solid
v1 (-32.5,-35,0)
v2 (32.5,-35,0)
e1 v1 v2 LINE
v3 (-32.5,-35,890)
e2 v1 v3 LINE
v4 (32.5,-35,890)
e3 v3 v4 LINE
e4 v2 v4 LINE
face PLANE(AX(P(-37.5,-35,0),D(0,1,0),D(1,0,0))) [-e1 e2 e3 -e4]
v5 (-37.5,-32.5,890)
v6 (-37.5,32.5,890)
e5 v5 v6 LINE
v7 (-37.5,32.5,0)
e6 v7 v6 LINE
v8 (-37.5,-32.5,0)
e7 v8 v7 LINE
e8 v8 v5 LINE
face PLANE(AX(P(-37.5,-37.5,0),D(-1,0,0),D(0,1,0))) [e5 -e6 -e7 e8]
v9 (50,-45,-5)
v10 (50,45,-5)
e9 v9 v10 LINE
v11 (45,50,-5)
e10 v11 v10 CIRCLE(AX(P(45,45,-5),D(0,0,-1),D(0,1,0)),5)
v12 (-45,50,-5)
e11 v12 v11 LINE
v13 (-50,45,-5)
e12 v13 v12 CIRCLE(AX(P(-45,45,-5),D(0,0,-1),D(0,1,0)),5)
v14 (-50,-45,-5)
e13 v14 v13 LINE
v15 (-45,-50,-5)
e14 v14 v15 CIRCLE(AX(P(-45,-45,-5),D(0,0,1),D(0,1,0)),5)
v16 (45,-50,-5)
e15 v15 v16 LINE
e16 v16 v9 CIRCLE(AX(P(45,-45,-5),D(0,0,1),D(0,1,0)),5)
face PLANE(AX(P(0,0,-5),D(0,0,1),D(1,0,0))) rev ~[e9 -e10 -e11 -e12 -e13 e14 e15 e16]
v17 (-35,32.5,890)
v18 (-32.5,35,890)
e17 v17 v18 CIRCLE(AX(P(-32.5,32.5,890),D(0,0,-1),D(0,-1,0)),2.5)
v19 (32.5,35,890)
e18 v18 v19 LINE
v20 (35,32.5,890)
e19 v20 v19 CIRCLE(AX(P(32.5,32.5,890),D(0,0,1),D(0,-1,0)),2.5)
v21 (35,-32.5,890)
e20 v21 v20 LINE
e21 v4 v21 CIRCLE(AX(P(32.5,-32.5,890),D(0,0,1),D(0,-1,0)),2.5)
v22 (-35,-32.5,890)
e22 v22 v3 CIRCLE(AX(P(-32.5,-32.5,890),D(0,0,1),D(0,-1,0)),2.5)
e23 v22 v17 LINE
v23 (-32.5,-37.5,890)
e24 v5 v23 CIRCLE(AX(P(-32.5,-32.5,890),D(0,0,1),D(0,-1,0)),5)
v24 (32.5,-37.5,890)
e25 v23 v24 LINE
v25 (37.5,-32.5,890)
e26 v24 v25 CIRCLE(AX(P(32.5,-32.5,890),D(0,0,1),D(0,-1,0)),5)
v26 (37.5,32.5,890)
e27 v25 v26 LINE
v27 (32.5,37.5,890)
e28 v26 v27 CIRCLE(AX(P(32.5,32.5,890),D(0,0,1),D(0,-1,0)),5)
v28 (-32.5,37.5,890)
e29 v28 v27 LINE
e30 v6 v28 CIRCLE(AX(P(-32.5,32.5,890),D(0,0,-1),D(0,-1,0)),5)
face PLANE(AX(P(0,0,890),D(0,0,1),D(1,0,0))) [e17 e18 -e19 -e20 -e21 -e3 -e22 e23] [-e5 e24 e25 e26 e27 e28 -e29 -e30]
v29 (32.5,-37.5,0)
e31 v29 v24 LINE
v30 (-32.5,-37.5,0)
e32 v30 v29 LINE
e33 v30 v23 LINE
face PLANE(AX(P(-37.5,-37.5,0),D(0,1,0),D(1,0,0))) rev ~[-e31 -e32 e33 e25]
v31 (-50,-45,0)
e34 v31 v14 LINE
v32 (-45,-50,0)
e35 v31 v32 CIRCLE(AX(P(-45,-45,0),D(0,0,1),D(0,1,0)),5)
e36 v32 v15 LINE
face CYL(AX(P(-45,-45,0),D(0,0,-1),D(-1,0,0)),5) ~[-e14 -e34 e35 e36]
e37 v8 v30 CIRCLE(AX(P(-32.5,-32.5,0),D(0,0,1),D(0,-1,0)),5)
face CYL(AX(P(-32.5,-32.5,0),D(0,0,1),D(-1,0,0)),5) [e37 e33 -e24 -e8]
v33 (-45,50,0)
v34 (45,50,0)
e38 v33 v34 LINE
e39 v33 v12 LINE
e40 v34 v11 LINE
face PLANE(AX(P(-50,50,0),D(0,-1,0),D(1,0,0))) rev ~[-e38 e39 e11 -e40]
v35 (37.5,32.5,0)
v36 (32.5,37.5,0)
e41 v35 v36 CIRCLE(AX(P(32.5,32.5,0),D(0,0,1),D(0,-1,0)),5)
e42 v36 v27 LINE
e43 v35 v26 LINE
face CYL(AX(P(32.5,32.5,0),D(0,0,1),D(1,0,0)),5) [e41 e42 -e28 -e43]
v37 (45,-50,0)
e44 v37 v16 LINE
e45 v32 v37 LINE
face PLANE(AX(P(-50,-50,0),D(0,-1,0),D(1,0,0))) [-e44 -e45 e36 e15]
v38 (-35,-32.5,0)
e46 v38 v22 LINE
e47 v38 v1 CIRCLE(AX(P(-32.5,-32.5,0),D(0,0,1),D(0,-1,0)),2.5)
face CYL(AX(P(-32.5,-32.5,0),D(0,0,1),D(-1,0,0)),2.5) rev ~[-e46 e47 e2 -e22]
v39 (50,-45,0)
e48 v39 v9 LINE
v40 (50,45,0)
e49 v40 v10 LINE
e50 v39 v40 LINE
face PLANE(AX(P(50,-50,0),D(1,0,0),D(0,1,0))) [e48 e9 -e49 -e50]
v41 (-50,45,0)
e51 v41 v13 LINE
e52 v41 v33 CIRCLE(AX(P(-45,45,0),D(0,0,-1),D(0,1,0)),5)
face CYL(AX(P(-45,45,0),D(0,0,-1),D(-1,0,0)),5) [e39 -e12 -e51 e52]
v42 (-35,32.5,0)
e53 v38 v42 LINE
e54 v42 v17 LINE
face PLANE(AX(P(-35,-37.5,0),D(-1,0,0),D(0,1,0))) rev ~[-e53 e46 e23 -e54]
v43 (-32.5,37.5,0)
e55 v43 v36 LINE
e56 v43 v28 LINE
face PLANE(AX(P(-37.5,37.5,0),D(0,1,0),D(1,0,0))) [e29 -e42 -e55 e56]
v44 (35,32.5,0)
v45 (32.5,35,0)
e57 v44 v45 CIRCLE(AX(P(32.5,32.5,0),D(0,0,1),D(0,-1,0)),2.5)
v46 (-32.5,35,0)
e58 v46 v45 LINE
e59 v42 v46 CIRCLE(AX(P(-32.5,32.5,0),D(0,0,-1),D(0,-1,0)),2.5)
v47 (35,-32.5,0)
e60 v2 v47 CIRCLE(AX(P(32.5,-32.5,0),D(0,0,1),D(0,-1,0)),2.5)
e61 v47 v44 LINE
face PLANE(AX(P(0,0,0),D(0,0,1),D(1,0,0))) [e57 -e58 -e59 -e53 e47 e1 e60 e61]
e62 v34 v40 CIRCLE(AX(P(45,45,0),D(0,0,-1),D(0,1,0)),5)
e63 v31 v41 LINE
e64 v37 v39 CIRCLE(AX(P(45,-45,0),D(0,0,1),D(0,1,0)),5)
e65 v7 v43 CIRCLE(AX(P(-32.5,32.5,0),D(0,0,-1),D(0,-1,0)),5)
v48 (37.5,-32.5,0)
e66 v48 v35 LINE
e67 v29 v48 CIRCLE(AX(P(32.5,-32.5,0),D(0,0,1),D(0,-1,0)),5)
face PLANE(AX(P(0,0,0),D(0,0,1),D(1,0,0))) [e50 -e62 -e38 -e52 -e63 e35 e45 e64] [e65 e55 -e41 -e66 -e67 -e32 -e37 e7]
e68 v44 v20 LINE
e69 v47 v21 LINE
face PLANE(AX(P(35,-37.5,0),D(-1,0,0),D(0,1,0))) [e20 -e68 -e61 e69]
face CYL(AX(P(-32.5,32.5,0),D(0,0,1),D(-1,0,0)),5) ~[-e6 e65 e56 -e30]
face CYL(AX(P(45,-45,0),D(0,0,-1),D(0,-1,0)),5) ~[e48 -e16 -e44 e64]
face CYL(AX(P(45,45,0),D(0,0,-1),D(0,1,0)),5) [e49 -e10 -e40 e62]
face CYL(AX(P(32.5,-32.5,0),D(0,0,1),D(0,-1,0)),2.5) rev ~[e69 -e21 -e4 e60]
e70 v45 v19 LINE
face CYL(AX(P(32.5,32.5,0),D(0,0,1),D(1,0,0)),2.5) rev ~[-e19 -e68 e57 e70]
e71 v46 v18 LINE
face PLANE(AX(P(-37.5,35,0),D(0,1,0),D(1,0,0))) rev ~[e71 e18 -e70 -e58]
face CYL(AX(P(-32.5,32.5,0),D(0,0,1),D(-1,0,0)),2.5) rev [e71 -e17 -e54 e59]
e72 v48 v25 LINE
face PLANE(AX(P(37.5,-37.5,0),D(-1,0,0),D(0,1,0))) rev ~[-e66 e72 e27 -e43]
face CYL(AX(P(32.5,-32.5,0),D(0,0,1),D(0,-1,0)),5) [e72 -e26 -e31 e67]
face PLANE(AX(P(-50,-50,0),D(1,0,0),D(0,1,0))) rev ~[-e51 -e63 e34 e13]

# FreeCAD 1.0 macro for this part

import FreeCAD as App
import Part
import Sketcher
from FreeCAD import Vector
Q = App.Units.Quantity


def edges_at(feature, points):
    """Names of the edges that pass closest to the given points."""
    edges = feature.Shape.Edges
    near = lambda p: min(range(len(edges)), key=lambda i: edges[i].distToShape(Part.Vertex(*p))[0])
    return sorted({f"Edge{near(p) + 1}" for p in points})


def faces_at(feature, points):
    """Names of the faces that lie closest to the given points."""
    faces = feature.Shape.Faces
    near = lambda p: min(range(len(faces)), key=lambda i: faces[i].distToShape(Part.Vertex(*p))[0])
    return sorted({f"Face{near(p) + 1}" for p in points})


def add_polygon(sketch, points):
    """Adds a closed chain of lines whose ends are joined by coincident constraints."""
    first, n = sketch.GeometryCount, len(points)
    for a, b in zip(points, points[1:] + points[:1]):
        sketch.addGeometry(Part.LineSegment(App.Vector(*a, 0), App.Vector(*b, 0)), False)
    for i in range(n):
        sketch.addConstraint(Sketcher.Constraint("Coincident", first + i, 2, first + (i + 1) % n, 1))

doc = App.newDocument("Part")
body = doc.addObject("PartDesign::Body", "Body")

sketch1 = body.newObject("Sketcher::SketchObject", "Sketch")
sketch1.AttachmentSupport = (doc.getObject("XY_Plane"), [""])
sketch1.MapMode = "FlatFace"
add_polygon(sketch1, [(-37.5, 37.5), (-37.5, -37.5), (37.5, -37.5), (37.5, 37.5)])
sketch1.addConstraint([
    Sketcher.Constraint("Vertical", 0),
    Sketcher.Constraint("Horizontal", 1),
    Sketcher.Constraint("Vertical", 2),
    Sketcher.Constraint("Horizontal", 3),
    Sketcher.Constraint("Symmetric", 0, 2, 2, 2, -1, 1),
    Sketcher.Constraint("Equal", 3, 0),
    Sketcher.Constraint("DistanceX", 1, 1, 1, 2, Q("75 mm")),
])
pad1 = body.newObject("PartDesign::Pad", "Pad")
pad1.Profile = sketch1
pad1.Length = 890
doc.recompute()

fillet = body.newObject("PartDesign::Fillet", "Fillet")
fillet.Base = (pad1, edges_at(pad1, [
    (-37.5, -37.5, 445),
    (-37.5, 37.5, 445),
    (37.5, -37.5, 445),
    (37.5, 37.5, 445),
]))
fillet.Radius = 5
doc.recompute()

thickness = body.newObject("PartDesign::Thickness", "Thickness")
thickness.Base = (fillet, faces_at(fillet, [(0, 0, 0), (0, 0, 890)]))
thickness.Value = 2.5
thickness.Reversed = True
thickness.Join = "Arc"

sketch2 = body.newObject("Sketcher::SketchObject", "Sketch001")
sketch2.AttachmentSupport = (doc.getObject("XY_Plane"), [""])
sketch2.MapMode = "FlatFace"
add_polygon(sketch2, [(-50, 50), (-50, -50), (50, -50), (50, 50)])
sketch2.addConstraint([
    Sketcher.Constraint("Vertical", 0),
    Sketcher.Constraint("Horizontal", 1),
    Sketcher.Constraint("Vertical", 2),
    Sketcher.Constraint("Horizontal", 3),
    Sketcher.Constraint("Symmetric", 0, 2, 2, 2, -1, 1),
    Sketcher.Constraint("Equal", 3, 0),
    Sketcher.Constraint("DistanceX", 1, 1, 1, 2, Q("100 mm")),
])
pad2 = body.newObject("PartDesign::Pad", "Pad001")
pad2.Profile = sketch2
pad2.Length = 5
pad2.Reversed = True
doc.recompute()

fillet2 = body.newObject("PartDesign::Fillet", "Fillet001")
fillet2.Base = (pad2, edges_at(pad2, [
    (50, -50, -2.5),
    (50, 50, -2.5),
    (-50, -50, -2.5),
    (-50, 50, -2.5),
]))
fillet2.Radius = 5

doc.recompute()
